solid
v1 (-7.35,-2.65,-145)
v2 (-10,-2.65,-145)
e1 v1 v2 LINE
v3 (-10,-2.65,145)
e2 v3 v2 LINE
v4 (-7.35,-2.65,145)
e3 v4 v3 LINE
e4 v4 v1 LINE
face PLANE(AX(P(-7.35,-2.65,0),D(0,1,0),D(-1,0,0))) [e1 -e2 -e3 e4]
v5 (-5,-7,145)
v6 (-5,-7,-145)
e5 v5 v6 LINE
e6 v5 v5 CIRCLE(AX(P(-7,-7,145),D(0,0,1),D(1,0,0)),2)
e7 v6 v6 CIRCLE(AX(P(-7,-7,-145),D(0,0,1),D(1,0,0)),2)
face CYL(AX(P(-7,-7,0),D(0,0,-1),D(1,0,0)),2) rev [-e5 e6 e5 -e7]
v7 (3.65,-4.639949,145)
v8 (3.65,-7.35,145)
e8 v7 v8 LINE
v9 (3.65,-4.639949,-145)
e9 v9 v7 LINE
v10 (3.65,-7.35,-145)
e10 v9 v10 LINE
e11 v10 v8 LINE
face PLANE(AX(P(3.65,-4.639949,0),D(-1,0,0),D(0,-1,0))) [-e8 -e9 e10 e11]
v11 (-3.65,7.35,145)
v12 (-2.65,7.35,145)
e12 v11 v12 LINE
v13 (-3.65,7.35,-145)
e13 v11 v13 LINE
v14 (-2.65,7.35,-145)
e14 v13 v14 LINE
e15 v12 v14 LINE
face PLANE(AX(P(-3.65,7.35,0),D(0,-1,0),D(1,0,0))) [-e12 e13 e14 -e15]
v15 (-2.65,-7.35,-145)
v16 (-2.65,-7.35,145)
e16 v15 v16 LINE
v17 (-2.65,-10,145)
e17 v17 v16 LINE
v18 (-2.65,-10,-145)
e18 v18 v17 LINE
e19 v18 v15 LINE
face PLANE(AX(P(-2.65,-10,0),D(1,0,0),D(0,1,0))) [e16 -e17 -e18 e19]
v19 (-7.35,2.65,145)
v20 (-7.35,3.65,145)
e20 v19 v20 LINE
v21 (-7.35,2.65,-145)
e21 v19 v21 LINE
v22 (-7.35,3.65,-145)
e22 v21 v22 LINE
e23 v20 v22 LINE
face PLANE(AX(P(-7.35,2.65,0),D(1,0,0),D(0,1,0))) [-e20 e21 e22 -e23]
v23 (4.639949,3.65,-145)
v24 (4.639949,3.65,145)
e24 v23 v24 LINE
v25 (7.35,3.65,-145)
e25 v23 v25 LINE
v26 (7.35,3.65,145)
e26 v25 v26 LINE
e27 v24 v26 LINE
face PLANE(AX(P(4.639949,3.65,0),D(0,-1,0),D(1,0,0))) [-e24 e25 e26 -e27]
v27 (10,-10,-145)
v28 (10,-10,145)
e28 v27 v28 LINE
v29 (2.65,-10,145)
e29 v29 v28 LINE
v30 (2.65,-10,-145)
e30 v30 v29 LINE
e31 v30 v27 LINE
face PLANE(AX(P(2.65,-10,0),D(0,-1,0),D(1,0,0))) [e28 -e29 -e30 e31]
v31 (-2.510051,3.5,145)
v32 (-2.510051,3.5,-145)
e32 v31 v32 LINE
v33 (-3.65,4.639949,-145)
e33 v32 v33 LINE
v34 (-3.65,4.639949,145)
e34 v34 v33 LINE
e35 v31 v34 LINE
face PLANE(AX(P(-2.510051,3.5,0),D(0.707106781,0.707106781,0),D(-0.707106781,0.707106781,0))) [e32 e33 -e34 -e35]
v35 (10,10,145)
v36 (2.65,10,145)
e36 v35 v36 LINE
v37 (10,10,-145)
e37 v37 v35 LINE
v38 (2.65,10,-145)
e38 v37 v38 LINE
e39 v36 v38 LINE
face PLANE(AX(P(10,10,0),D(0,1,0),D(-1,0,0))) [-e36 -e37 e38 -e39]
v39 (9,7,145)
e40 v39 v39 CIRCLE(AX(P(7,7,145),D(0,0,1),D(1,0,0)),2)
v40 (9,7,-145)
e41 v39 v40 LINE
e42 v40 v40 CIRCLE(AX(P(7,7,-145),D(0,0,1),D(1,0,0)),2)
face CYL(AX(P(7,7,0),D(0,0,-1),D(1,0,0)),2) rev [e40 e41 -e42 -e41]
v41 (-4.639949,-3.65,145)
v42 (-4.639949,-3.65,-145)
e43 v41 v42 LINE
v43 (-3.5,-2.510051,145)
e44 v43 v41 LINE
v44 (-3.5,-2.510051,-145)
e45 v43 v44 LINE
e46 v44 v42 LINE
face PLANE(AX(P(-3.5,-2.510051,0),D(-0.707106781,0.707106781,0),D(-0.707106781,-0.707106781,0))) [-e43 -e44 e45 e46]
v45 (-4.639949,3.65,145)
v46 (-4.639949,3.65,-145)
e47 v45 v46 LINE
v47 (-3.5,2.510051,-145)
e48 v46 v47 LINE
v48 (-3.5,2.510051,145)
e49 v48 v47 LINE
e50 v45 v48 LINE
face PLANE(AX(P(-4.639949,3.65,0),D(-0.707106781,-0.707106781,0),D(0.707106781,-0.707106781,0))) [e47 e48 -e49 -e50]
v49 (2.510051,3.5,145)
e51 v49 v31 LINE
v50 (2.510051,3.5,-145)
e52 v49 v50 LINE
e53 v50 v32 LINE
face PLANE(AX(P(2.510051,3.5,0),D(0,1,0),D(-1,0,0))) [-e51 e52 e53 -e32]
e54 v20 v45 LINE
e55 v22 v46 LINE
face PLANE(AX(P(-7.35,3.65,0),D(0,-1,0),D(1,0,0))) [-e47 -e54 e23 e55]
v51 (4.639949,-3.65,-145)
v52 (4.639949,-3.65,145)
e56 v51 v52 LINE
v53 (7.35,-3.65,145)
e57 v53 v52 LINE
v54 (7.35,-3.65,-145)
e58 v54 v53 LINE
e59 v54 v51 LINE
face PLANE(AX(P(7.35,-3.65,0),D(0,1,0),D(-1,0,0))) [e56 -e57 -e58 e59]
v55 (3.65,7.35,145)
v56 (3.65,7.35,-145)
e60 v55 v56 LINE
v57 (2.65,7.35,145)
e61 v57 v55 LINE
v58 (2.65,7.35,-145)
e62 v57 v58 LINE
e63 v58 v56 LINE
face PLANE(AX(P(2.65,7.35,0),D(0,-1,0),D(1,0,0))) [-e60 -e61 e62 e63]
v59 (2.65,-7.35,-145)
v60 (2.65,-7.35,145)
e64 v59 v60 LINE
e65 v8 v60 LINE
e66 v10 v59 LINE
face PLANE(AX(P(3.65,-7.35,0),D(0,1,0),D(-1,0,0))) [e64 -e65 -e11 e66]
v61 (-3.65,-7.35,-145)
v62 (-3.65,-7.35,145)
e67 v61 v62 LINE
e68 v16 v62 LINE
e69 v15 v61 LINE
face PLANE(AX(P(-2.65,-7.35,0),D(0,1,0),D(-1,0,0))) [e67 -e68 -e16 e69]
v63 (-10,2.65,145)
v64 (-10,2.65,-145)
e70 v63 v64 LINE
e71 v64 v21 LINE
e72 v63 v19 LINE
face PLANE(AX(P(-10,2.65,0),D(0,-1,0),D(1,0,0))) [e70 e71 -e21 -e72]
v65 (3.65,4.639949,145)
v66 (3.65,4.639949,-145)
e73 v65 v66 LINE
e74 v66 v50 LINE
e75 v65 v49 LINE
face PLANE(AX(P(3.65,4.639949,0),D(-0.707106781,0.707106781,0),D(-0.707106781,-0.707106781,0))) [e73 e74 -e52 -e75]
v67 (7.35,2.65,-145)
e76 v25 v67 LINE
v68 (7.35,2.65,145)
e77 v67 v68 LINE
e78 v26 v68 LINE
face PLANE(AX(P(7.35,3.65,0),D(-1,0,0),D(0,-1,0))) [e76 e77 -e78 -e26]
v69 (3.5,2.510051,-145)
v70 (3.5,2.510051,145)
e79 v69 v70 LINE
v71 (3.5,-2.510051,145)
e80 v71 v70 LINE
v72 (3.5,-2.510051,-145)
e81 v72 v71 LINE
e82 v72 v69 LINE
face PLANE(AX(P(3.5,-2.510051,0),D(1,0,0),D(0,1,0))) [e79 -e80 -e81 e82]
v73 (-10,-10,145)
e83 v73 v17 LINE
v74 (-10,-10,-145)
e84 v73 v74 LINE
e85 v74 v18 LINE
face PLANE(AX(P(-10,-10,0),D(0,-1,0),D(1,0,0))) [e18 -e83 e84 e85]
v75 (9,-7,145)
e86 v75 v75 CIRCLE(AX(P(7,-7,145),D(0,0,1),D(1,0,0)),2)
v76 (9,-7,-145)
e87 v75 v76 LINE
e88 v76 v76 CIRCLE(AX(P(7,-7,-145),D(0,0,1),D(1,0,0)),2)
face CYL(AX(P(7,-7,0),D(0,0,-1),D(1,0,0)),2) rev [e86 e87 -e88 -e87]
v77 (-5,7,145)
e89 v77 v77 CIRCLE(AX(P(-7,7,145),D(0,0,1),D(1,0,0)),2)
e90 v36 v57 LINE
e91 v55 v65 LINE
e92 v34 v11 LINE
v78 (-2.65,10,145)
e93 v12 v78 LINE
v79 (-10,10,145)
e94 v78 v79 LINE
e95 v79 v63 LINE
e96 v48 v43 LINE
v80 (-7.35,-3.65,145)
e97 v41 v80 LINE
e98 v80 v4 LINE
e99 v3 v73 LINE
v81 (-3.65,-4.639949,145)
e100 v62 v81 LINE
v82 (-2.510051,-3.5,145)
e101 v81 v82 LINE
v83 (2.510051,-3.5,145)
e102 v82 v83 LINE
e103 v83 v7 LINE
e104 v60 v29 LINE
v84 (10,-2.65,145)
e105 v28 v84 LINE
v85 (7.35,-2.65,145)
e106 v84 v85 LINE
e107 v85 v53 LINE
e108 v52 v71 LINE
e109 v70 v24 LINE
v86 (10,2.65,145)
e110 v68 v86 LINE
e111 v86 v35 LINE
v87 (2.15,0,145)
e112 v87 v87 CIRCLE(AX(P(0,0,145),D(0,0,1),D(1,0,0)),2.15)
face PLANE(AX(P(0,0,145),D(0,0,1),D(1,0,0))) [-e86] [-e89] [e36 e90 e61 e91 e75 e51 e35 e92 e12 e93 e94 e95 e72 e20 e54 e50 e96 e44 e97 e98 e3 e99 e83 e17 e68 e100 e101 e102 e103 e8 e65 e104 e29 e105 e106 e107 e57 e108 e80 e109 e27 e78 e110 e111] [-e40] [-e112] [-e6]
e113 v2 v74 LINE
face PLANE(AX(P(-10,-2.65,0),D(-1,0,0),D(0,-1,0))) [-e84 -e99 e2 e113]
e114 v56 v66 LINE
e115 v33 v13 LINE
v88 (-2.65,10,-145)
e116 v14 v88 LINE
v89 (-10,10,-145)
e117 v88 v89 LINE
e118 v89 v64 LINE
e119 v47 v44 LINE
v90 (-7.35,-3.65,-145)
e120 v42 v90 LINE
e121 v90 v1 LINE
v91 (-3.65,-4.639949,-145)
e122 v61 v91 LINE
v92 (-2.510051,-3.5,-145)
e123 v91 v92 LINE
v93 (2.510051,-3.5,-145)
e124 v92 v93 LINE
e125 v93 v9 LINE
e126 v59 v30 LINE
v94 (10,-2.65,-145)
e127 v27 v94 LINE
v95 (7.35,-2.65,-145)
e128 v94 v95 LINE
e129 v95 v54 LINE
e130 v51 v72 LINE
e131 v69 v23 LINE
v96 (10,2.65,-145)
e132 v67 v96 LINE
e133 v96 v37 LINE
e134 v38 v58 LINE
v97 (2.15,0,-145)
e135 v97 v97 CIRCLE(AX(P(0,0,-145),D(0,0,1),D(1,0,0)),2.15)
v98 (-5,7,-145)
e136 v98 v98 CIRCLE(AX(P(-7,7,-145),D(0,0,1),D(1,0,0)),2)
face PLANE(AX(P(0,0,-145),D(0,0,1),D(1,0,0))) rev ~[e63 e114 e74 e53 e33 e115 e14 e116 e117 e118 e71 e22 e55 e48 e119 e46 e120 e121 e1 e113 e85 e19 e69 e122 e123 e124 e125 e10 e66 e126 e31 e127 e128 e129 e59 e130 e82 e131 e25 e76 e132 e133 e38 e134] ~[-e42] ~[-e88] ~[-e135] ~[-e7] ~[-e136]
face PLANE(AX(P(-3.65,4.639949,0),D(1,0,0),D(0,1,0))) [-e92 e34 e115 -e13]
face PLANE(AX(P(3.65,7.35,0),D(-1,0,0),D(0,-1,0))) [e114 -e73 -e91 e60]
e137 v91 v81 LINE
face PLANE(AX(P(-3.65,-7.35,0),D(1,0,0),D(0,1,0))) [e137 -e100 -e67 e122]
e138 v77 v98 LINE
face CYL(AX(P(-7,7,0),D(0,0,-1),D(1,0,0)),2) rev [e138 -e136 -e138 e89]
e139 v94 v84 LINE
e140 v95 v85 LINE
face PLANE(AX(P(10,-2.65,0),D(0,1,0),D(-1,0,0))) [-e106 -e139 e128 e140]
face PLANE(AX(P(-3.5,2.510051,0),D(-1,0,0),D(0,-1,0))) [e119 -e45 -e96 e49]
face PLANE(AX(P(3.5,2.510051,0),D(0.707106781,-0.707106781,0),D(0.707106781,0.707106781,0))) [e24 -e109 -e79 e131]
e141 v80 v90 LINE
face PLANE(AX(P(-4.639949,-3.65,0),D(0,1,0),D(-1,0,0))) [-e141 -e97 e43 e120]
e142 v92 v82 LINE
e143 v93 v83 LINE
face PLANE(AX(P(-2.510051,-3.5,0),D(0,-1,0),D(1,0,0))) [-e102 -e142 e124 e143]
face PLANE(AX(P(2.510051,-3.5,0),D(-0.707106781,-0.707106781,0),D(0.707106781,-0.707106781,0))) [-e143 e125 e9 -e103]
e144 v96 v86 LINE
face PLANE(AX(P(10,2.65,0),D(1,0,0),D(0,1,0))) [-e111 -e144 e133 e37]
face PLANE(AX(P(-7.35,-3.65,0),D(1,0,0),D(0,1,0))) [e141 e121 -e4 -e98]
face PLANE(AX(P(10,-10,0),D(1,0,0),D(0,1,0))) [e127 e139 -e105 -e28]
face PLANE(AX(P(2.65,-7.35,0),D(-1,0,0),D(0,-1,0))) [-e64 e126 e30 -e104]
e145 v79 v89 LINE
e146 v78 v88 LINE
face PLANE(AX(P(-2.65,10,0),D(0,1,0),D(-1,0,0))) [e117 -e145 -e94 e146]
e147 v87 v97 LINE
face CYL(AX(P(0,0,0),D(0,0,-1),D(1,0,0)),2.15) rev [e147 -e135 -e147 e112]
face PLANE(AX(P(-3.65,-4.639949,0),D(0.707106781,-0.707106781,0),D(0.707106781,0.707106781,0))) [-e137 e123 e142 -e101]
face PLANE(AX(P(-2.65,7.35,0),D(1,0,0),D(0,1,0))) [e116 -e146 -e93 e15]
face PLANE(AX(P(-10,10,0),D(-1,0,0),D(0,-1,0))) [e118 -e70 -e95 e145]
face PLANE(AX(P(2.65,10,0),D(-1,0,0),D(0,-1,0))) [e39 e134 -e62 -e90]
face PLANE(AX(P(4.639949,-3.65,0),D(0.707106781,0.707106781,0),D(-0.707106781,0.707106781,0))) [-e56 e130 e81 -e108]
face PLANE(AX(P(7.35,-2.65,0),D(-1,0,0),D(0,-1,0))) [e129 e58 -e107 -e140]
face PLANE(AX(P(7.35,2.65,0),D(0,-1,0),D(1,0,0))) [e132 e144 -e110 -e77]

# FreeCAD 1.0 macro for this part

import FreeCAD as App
import Part
import Sketcher
from FreeCAD import Vector
Q = App.Units.Quantity


def add_polygon(sketch, points):
    """Adds a closed chain of lines whose ends are joined by coincident constraints."""
    first, n = sketch.GeometryCount, len(points)
    for a, b in zip(points, points[1:] + points[:1]):
        sketch.addGeometry(Part.LineSegment(App.Vector(*a, 0), App.Vector(*b, 0)), False)
    for i in range(n):
        sketch.addConstraint(Sketcher.Constraint("Coincident", first + i, 2, first + (i + 1) % n, 1))

doc = App.newDocument("Part")
body = doc.addObject("PartDesign::Body", "Body")

# Sketch on XY plane
sketch1 = body.newObject("Sketcher::SketchObject", "Sketch")
sketch1.AttachmentSupport = (doc.getObject("XY_Plane"), [""])
sketch1.MapMode = "FlatFace"
add_polygon(sketch1, [(-10, -10), (-2.6, -10), (-2.6, -7.3), (-3.6, -7.3), (-3.6, -4.6), (-2.5, -3.5), (2.5, -3.5), (3.6, -4.6), (3.6, -7.3), (2.6, -7.3), (2.6, -10), (10, -10), (10, -2.6), (7.3, -2.6), (7.3, -3.6), (4.6, -3.6), (3.5, -2.5), (3.5, 2.5), (4.6, 3.6), (7.3, 3.6), (7.3, 2.6), (10, 2.6), (10, 10), (2.6, 10), (2.6, 7.3), (3.6, 7.3), (3.6, 4.6), (2.5, 3.5), (-2.5, 3.5), (-3.6, 4.6), (-3.6, 7.3), (-2.6, 7.3), (-2.6, 10), (-10, 10), (-10, 2.6), (-7.3, 2.6), (-7.3, 3.6), (-4.6, 3.6), (-3.5, 2.5), (-3.5, -2.5), (-4.6, -3.6), (-7.3, -3.6), (-7.3, -2.6), (-10, -2.6)])  # lines 0-43
sketch1.addGeometry(Part.Circle(Vector(-7, -7, 0), Vector(0, 0, 1), 2), False)  # 44
sketch1.addGeometry(Part.Circle(Vector(7, -7, 0), Vector(0, 0, 1), 2), False)  # 45
sketch1.addGeometry(Part.Circle(Vector(-7, 7, 0), Vector(0, 0, 1), 2), False)  # 46
sketch1.addGeometry(Part.Circle(Vector(0, 0, 0), Vector(0, 0, 1), 2.1), False)  # 47
sketch1.addGeometry(Part.Circle(Vector(7, 7, 0), Vector(0, 0, 1), 2), False)  # 48
sketch1.addConstraint(Sketcher.Constraint("Horizontal", 0))
sketch1.addConstraint(Sketcher.Constraint("Vertical", 1))
sketch1.addConstraint(Sketcher.Constraint("Horizontal", 2))
sketch1.addConstraint(Sketcher.Constraint("Vertical", 3))
sketch1.addConstraint(Sketcher.Constraint("Horizontal", 5))
sketch1.addConstraint(Sketcher.Constraint("Vertical", 7))
sketch1.addConstraint(Sketcher.Constraint("Horizontal", 8))
sketch1.addConstraint(Sketcher.Constraint("Vertical", 9))
sketch1.addConstraint(Sketcher.Constraint("Horizontal", 10))
sketch1.addConstraint(Sketcher.Constraint("Vertical", 11))
sketch1.addConstraint(Sketcher.Constraint("Horizontal", 12))
sketch1.addConstraint(Sketcher.Constraint("Vertical", 13))
sketch1.addConstraint(Sketcher.Constraint("Horizontal", 14))
sketch1.addConstraint(Sketcher.Constraint("Vertical", 16))
sketch1.addConstraint(Sketcher.Constraint("Horizontal", 18))
sketch1.addConstraint(Sketcher.Constraint("Vertical", 19))
sketch1.addConstraint(Sketcher.Constraint("Horizontal", 20))
sketch1.addConstraint(Sketcher.Constraint("Vertical", 21))
sketch1.addConstraint(Sketcher.Constraint("Horizontal", 22))
sketch1.addConstraint(Sketcher.Constraint("Vertical", 23))
sketch1.addConstraint(Sketcher.Constraint("Horizontal", 24))
sketch1.addConstraint(Sketcher.Constraint("Vertical", 25))
sketch1.addConstraint(Sketcher.Constraint("Horizontal", 27))
sketch1.addConstraint(Sketcher.Constraint("Vertical", 29))
sketch1.addConstraint(Sketcher.Constraint("Horizontal", 30))
sketch1.addConstraint(Sketcher.Constraint("Vertical", 31))
sketch1.addConstraint(Sketcher.Constraint("Horizontal", 32))
sketch1.addConstraint(Sketcher.Constraint("Vertical", 33))
sketch1.addConstraint(Sketcher.Constraint("Horizontal", 34))
sketch1.addConstraint(Sketcher.Constraint("Vertical", 35))
sketch1.addConstraint(Sketcher.Constraint("Horizontal", 36))
sketch1.addConstraint(Sketcher.Constraint("Vertical", 38))
sketch1.addConstraint(Sketcher.Constraint("Horizontal", 40))
sketch1.addConstraint(Sketcher.Constraint("Vertical", 41))
sketch1.addConstraint(Sketcher.Constraint("Horizontal", 42))
sketch1.addConstraint(Sketcher.Constraint("Vertical", 43))
sketch1.addConstraint(Sketcher.Constraint("Coincident", 47, 3, -1, 1))
sketch1.addConstraint(Sketcher.Constraint("Equal", 44, 45))
sketch1.addConstraint(Sketcher.Constraint("Equal", 45, 46))
sketch1.addConstraint(Sketcher.Constraint("Equal", 46, 48))
sketch1.addConstraint(Sketcher.Constraint("Symmetric", 45, 3, 46, 3, -1, 1))
sketch1.addConstraint(Sketcher.Constraint("Symmetric", 44, 3, 48, 3, -1, 1))
sketch1.addConstraint(Sketcher.Constraint("Symmetric", 0, 2, 22, 2, -1, 1))
sketch1.addConstraint(Sketcher.Constraint("Symmetric", 2, 2, 24, 2, -1, 1))
sketch1.addConstraint(Sketcher.Constraint("Symmetric", 4, 2, 26, 2, -1, 1))
sketch1.addConstraint(Sketcher.Constraint("Symmetric", 6, 2, 28, 2, -1, 1))
sketch1.addConstraint(Sketcher.Constraint("Symmetric", 8, 2, 30, 2, -1, 1))
sketch1.addConstraint(Sketcher.Constraint("Symmetric", 10, 2, 32, 2, -1, 1))
sketch1.addConstraint(Sketcher.Constraint("Symmetric", 12, 2, 34, 2, -1, 1))
sketch1.addConstraint(Sketcher.Constraint("Symmetric", 14, 2, 36, 2, -1, 1))
sketch1.addConstraint(Sketcher.Constraint("Symmetric", 15, 2, 37, 2, -1, 1))
sketch1.addConstraint(Sketcher.Constraint("Symmetric", 17, 2, 39, 2, -1, 1))
sketch1.addConstraint(Sketcher.Constraint("Symmetric", 19, 2, 41, 2, -1, 1))
sketch1.addConstraint(Sketcher.Constraint("Symmetric", 44, 3, 45, 3, -2))
sketch1.addConstraint(Sketcher.Constraint("Symmetric", 3, 2, 6, 2, -2))
sketch1.addConstraint(Sketcher.Constraint("Symmetric", 1, 2, 8, 2, -2))
sketch1.addConstraint(Sketcher.Constraint("Symmetric", 21, 2, 32, 2, -2))
sketch1.addConstraint(Sketcher.Constraint("Symmetric", 19, 2, 34, 2, -2))
sketch1.addConstraint(Sketcher.Constraint("Symmetric", 17, 2, 36, 2, -2))
sketch1.addConstraint(Sketcher.Constraint("Perpendicular", 4, 6))
sketch1.addConstraint(Sketcher.Constraint("Parallel", 6, 15))
sketch1.addConstraint(Sketcher.Constraint("Perpendicular", 15, 17))
sketch1.addConstraint(Sketcher.Constraint("Parallel", 17, 26))
sketch1.addConstraint(Sketcher.Constraint("Perpendicular", 26, 28))
sketch1.addConstraint(Sketcher.Constraint("Perpendicular", 37, 39))
sketch1.addConstraint(Sketcher.Constraint("Horizontal", 16, 2, 37, 2))
sketch1.addConstraint(Sketcher.Constraint("Vertical", 33, 2, 42, 2))
sketch1.addConstraint(Sketcher.Constraint("Equal", 42, 1))
sketch1.addConstraint(Sketcher.Constraint("Equal", 40, 3))
sketch1.addConstraint(Sketcher.Constraint("Equal", 32, 11))
sketch1.addConstraint(Sketcher.Constraint("Equal", 30, 13))
sketch1.addConstraint(Sketcher.Constraint("Equal", 27, 16))
sketch1.addConstraint(Sketcher.Constraint("Equal", 6, 15))
sketch1.addConstraint(Sketcher.Constraint("Diameter", 44, Q("4 mm")))
sketch1.addConstraint(Sketcher.Constraint("Diameter", 47, Q("4.3 mm")))
sketch1.addConstraint(Sketcher.Constraint("DistanceX", 2, 2, 2, 1, Q("1 mm")))
sketch1.addConstraint(Sketcher.Constraint("DistanceX", 44, 3, -1, 1, Q("7 mm")))
sketch1.addConstraint(Sketcher.Constraint("DistanceY", 44, 3, -1, 1, Q("7 mm")))
sketch1.addConstraint(Sketcher.Constraint("DistanceY", 0, 2, -1, 1, Q("10 mm")))
sketch1.addConstraint(Sketcher.Constraint("DistanceX", 0, 1, 0, 2, Q("7.35 mm")))
sketch1.addConstraint(Sketcher.Constraint("DistanceX", 12, 2, 12, 1, Q("2.65 mm")))
sketch1.addConstraint(Sketcher.Constraint("DistanceY", 4, 2, -1, 1, Q("3.5 mm")))
sketch1.addConstraint(Sketcher.Constraint("DistanceX", 5, 1, 5, 2, Q("5.020101 mm")))
pad1 = body.newObject("PartDesign::Pad", "Pad")
pad1.Profile = sketch1
pad1.Length = 290
pad1.Midplane = True

doc.recompute()
